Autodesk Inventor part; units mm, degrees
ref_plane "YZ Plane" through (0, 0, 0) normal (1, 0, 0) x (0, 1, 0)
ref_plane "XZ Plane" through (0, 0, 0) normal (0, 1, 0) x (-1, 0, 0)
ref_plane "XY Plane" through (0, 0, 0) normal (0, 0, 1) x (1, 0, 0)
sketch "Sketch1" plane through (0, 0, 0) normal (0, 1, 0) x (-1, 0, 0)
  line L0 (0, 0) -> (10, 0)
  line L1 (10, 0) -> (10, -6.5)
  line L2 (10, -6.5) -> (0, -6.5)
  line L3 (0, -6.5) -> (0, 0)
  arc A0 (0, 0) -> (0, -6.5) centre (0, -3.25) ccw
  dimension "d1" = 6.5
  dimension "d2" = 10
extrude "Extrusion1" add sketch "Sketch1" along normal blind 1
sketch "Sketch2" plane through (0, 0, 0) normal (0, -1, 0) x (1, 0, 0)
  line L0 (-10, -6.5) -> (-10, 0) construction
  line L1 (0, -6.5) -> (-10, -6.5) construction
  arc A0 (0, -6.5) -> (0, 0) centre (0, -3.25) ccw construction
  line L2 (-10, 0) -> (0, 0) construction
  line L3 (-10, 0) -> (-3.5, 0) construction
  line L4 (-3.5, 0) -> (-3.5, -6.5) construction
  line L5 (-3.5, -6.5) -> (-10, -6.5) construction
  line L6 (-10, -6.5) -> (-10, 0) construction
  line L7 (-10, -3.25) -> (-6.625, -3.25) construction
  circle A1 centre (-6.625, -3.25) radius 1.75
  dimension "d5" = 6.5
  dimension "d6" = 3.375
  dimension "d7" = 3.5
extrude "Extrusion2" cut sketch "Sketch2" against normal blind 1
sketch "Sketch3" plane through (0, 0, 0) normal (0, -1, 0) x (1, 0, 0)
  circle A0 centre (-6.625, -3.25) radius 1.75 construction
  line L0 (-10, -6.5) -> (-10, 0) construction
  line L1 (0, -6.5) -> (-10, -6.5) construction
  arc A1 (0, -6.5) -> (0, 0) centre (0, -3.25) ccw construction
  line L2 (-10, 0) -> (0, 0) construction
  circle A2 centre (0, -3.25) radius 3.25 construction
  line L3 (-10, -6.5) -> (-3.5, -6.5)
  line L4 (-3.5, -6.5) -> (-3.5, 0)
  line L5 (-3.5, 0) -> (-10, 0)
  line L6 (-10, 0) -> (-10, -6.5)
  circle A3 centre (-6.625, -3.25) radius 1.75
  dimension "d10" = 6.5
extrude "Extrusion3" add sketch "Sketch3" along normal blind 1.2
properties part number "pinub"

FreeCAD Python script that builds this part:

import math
import FreeCAD as App
import Part
import Sketcher
from FreeCAD import Vector
Q = App.Units.Quantity

doc = App.newDocument("Part")
body = doc.addObject("PartDesign::Body", "Body")

sketch1 = doc.addObject("Sketcher::SketchObject", "Sketch")
body.addObject(sketch1)
sketch1.AttachmentSupport = (doc.XZ_Plane, [""])
sketch1.MapMode = "FlatFace"
sketch1.addGeometry([
    Part.LineSegment(Vector(-10, 0, 0), Vector(0, 0, 0)),
    Part.ArcOfCircle(Part.Circle(Vector(0, -3.25, 0), Vector(0, 0, 1), 3.25), math.radians(-90), math.radians(90)),
    Part.LineSegment(Vector(0, -6.5, 0), Vector(-10, -6.5, 0)),
    Part.LineSegment(Vector(-10, -6.5, 0), Vector(-10, 0, 0)),
], False)
sketch1.addConstraint([
    Sketcher.Constraint("Tangent", 0, 2, 1, 2),
    Sketcher.Constraint("Tangent", 1, 1, 2, 1),
    Sketcher.Constraint("Coincident", 2, 2, 3, 1),
    Sketcher.Constraint("Coincident", 3, 2, 0, 1),
    Sketcher.Constraint("Horizontal", 0),
    Sketcher.Constraint("Horizontal", 2),
    Sketcher.Constraint("Vertical", 3),
    Sketcher.Constraint("Coincident", 0, 2, -1, 1),
    Sketcher.Constraint("DistanceX", 0, 1, 0, 2, Q("10 mm")),
    Sketcher.Constraint("Radius", 1, Q("3.25 mm")),
])
pad1 = doc.addObject("PartDesign::Pad", "Pad")
body.addObject(pad1)
pad1.Profile = sketch1
pad1.Length = 1
pad1.Reversed = True

sketch2 = doc.addObject("Sketcher::SketchObject", "Sketch001")
body.addObject(sketch2)
sketch2.AttachmentSupport = (doc.XZ_Plane, [""])
sketch2.MapMode = "FlatFace"
sketch2.addGeometry(Part.Circle(Vector(-6.625, -3.25, 0), Vector(0, 0, 1), 1.75), False)
sketch2.addConstraint([
    Sketcher.Constraint("Diameter", 0, Q("3.5 mm")),
    Sketcher.Constraint("DistanceY", 0, 3, -1, 1, Q("3.25 mm")),
    Sketcher.Constraint("DistanceX", 0, 3, -1, 1, Q("6.625 mm")),
])
pocket1 = doc.addObject("PartDesign::Pocket", "Pocket")
body.addObject(pocket1)
pocket1.Profile = sketch2
pocket1.Length = 1

sketch3 = doc.addObject("Sketcher::SketchObject", "Sketch002")
body.addObject(sketch3)
sketch3.AttachmentSupport = (doc.XZ_Plane, [""])
sketch3.MapMode = "FlatFace"
sketch3.addGeometry([
    Part.LineSegment(Vector(-10, 0, 0), Vector(-10, -6.5, 0)),
    Part.LineSegment(Vector(-10, -6.5, 0), Vector(-3.5, -6.5, 0)),
    Part.LineSegment(Vector(-3.5, -6.5, 0), Vector(-3.5, 0, 0)),
    Part.LineSegment(Vector(-3.5, 0, 0), Vector(-10, 0, 0)),
    Part.Circle(Vector(-6.625, -3.25, 0), Vector(0, 0, 1), 1.75),
], False)
sketch3.addConstraint([
    Sketcher.Constraint("Coincident", 0, 2, 1, 1),
    Sketcher.Constraint("Coincident", 1, 2, 2, 1),
    Sketcher.Constraint("Coincident", 2, 2, 3, 1),
    Sketcher.Constraint("Coincident", 3, 2, 0, 1),
    Sketcher.Constraint("Vertical", 0),
    Sketcher.Constraint("Horizontal", 1),
    Sketcher.Constraint("Vertical", 2),
    Sketcher.Constraint("Horizontal", 3),
    Sketcher.Constraint("PointOnObject", 2, 2, -1),
    Sketcher.Constraint("Equal", 3, 0),
    Sketcher.Constraint("DistanceX", 1, 1, 1, 2, Q("6.5 mm")),
    Sketcher.Constraint("Diameter", 4, Q("3.5 mm")),
    Sketcher.Constraint("DistanceX", 0, 2, -1, 1, Q("10 mm")),
    Sketcher.Constraint("DistanceY", 4, 3, -1, 1, Q("3.25 mm")),
    Sketcher.Constraint("DistanceX", 4, 3, -1, 1, Q("6.625 mm")),
])
pad2 = doc.addObject("PartDesign::Pad", "Pad001")
body.addObject(pad2)
pad2.Profile = sketch3
pad2.Length = 1.2

doc.recompute()
